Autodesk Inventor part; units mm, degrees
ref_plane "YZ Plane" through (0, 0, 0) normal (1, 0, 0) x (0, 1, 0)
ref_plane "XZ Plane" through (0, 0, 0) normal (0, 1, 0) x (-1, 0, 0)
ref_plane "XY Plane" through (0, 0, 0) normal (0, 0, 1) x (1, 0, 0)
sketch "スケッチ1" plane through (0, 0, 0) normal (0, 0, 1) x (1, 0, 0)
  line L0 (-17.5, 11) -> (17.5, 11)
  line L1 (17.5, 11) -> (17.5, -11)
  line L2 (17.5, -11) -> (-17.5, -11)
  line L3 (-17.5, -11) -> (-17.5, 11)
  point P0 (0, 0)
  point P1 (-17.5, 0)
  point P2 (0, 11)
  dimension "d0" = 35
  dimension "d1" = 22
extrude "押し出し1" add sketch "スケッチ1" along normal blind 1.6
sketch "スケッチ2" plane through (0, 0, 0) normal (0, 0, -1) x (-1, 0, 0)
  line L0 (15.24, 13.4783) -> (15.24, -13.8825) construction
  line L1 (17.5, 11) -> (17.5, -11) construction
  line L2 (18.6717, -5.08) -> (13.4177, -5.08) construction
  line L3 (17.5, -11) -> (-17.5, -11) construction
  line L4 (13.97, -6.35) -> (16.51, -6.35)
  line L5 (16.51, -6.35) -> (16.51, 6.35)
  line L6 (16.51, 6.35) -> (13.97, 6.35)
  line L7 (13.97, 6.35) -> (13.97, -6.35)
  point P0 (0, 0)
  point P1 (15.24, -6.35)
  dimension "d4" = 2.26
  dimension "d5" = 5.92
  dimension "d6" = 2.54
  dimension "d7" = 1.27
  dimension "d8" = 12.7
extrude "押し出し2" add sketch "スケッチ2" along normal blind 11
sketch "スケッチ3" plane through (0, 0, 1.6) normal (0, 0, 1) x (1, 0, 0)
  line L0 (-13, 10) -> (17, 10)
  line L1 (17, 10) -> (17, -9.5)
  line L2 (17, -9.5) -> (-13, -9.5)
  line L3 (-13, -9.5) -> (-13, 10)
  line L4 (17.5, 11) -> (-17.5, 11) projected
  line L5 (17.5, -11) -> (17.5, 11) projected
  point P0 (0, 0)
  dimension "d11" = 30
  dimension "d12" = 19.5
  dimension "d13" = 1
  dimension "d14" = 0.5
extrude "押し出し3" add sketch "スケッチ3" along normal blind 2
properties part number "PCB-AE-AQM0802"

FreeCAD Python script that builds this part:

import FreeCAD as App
import Part
import Sketcher

V = App.Vector
Q = App.Units.Quantity

doc = App.newDocument("Part")
body = doc.addObject("PartDesign::Body", "Body")

# Sketch on XY plane
sketch1 = body.newObject("Sketcher::SketchObject", "Sketch")
sketch1.AttachmentSupport = (doc.getObject("XY_Plane"), [""])
sketch1.MapMode = "FlatFace"
sketch1.addGeometry(Part.LineSegment(V(17.5, 11, 0), V(-17.5, 11, 0)), False)
sketch1.addGeometry(Part.LineSegment(V(-17.5, 11, 0), V(-17.5, -11, 0)), False)
sketch1.addGeometry(Part.LineSegment(V(-17.5, -11, 0), V(17.5, -11, 0)), False)
sketch1.addGeometry(Part.LineSegment(V(17.5, -11, 0), V(17.5, 11, 0)), False)
sketch1.addConstraint(Sketcher.Constraint("Coincident", 0, 2, 1, 1))
sketch1.addConstraint(Sketcher.Constraint("Coincident", 1, 2, 2, 1))
sketch1.addConstraint(Sketcher.Constraint("Coincident", 2, 2, 3, 1))
sketch1.addConstraint(Sketcher.Constraint("Coincident", 3, 2, 0, 1))
sketch1.addConstraint(Sketcher.Constraint("Horizontal", 0))
sketch1.addConstraint(Sketcher.Constraint("Vertical", 1))
sketch1.addConstraint(Sketcher.Constraint("Horizontal", 2))
sketch1.addConstraint(Sketcher.Constraint("Vertical", 3))
sketch1.addConstraint(Sketcher.Constraint("Symmetric", 0, 2, 2, 2, -1, 1))
sketch1.addConstraint(Sketcher.Constraint("DistanceX", 0, 2, 0, 1, Q("35 mm")))
sketch1.addConstraint(Sketcher.Constraint("DistanceY", 1, 2, 1, 1, Q("22 mm")))
pad1 = body.newObject("PartDesign::Pad", "Pad")
pad1.Profile = sketch1
pad1.Length = 1.6

# Sketch on XY plane
sketch2 = body.newObject("Sketcher::SketchObject", "Sketch001")
sketch2.AttachmentSupport = (doc.getObject("XY_Plane"), [""])
sketch2.MapMode = "FlatFace"
sketch2.addGeometry(Part.LineSegment(V(-13.97, 6.35, 0), V(-13.97, -6.35, 0)), False)
sketch2.addGeometry(Part.LineSegment(V(-13.97, -6.35, 0), V(-16.51, -6.35, 0)), False)
sketch2.addGeometry(Part.LineSegment(V(-16.51, -6.35, 0), V(-16.51, 6.35, 0)), False)
sketch2.addGeometry(Part.LineSegment(V(-16.51, 6.35, 0), V(-13.97, 6.35, 0)), False)
sketch2.addConstraint(Sketcher.Constraint("Coincident", 0, 2, 1, 1))
sketch2.addConstraint(Sketcher.Constraint("Coincident", 1, 2, 2, 1))
sketch2.addConstraint(Sketcher.Constraint("Coincident", 2, 2, 3, 1))
sketch2.addConstraint(Sketcher.Constraint("Coincident", 3, 2, 0, 1))
sketch2.addConstraint(Sketcher.Constraint("Vertical", 0))
sketch2.addConstraint(Sketcher.Constraint("Horizontal", 1))
sketch2.addConstraint(Sketcher.Constraint("Vertical", 2))
sketch2.addConstraint(Sketcher.Constraint("Horizontal", 3))
sketch2.addConstraint(Sketcher.Constraint("DistanceY", 0, 2, 0, 1, Q("12.7 mm")))
sketch2.addConstraint(Sketcher.Constraint("DistanceX", 1, 2, 1, 1, Q("2.54 mm")))
sketch2.addConstraint(Sketcher.Constraint("DistanceX", 0, 2, -1, 1, Q("13.97 mm")))
sketch2.addConstraint(Sketcher.Constraint("DistanceY", 0, 2, -1, 1, Q("6.35 mm")))
pad2 = body.newObject("PartDesign::Pad", "Pad001")
pad2.Profile = sketch2
pad2.Length = 11
pad2.Reversed = True

# Sketch on XY plane
sketch3 = body.newObject("Sketcher::SketchObject", "Sketch002")
sketch3.AttachmentSupport = (doc.getObject("XY_Plane"), [""])
sketch3.MapMode = "FlatFace"
sketch3.AttachmentOffset = App.Placement(V(0, 0, 1.6), App.Rotation())
sketch3.addGeometry(Part.LineSegment(V(17, 10, 0), V(-13, 10, 0)), False)
sketch3.addGeometry(Part.LineSegment(V(-13, 10, 0), V(-13, -9.5, 0)), False)
sketch3.addGeometry(Part.LineSegment(V(-13, -9.5, 0), V(17, -9.5, 0)), False)
sketch3.addGeometry(Part.LineSegment(V(17, -9.5, 0), V(17, 10, 0)), False)
sketch3.addConstraint(Sketcher.Constraint("Coincident", 0, 2, 1, 1))
sketch3.addConstraint(Sketcher.Constraint("Coincident", 1, 2, 2, 1))
sketch3.addConstraint(Sketcher.Constraint("Coincident", 2, 2, 3, 1))
sketch3.addConstraint(Sketcher.Constraint("Coincident", 3, 2, 0, 1))
sketch3.addConstraint(Sketcher.Constraint("Horizontal", 0))
sketch3.addConstraint(Sketcher.Constraint("Vertical", 1))
sketch3.addConstraint(Sketcher.Constraint("Horizontal", 2))
sketch3.addConstraint(Sketcher.Constraint("Vertical", 3))
sketch3.addConstraint(Sketcher.Constraint("DistanceX", 0, 2, 0, 1, Q("30 mm")))
sketch3.addConstraint(Sketcher.Constraint("DistanceY", 1, 2, 1, 1, Q("19.5 mm")))
sketch3.addConstraint(Sketcher.Constraint("DistanceX", 0, 2, -1, 1, Q("13 mm")))
sketch3.addConstraint(Sketcher.Constraint("DistanceY", -1, 1, 0, 2, Q("10 mm")))
pad3 = body.newObject("PartDesign::Pad", "Pad002")
pad3.Profile = sketch3
pad3.Length = 2

doc.recompute()
